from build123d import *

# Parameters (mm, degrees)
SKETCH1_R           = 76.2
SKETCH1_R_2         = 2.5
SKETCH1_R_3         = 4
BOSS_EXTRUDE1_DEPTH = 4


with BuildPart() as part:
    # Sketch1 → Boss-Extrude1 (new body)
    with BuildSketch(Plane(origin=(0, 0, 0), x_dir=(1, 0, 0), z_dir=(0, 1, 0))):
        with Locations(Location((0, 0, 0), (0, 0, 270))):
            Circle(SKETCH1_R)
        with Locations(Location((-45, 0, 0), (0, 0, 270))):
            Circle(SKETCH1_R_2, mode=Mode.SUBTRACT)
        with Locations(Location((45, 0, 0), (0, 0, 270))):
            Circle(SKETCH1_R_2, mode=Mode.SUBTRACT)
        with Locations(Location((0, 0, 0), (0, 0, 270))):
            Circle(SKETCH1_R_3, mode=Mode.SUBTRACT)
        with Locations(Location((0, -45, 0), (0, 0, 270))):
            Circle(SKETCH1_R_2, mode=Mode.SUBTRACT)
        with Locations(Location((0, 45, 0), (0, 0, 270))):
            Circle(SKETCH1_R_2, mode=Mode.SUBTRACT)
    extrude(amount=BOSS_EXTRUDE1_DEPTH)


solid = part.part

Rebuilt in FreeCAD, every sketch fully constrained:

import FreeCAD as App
import Part
import Sketcher
from FreeCAD import Vector

doc = App.newDocument("Part")
body = doc.addObject("PartDesign::Body", "Body")

# Sketch on XZ plane
sketch1 = body.newObject("Sketcher::SketchObject", "Sketch")
sketch1.AttachmentSupport = (doc.getObject("XZ_Plane"), [""])
sketch1.MapMode = "FlatFace"
sketch1.addGeometry(Part.Circle(Vector(0, 0, 0), Vector(0, 0, 1), 76.2), False)
sketch1.addGeometry(Part.Circle(Vector(0, -45, 0), Vector(0, 0, 1), 2.5), False)
sketch1.addGeometry(Part.Circle(Vector(-45, 0, 0), Vector(0, 0, 1), 2.5), False)
sketch1.addGeometry(Part.Circle(Vector(45, 0, 0), Vector(0, 0, 1), 2.5), False)
sketch1.addGeometry(Part.Circle(Vector(0, 0, 0), Vector(0, 0, 1), 4), False)
sketch1.addGeometry(Part.Circle(Vector(0, 45, 0), Vector(0, 0, 1), 2.5), False)
sketch1.addConstraint(Sketcher.Constraint("Coincident", 0, 3, -1, 1))
sketch1.addConstraint(Sketcher.Constraint("Coincident", 4, 3, -1, 1))
sketch1.addConstraint(Sketcher.Constraint("Equal", 1, 2))
sketch1.addConstraint(Sketcher.Constraint("Equal", 2, 3))
sketch1.addConstraint(Sketcher.Constraint("Equal", 3, 5))
sketch1.addConstraint(Sketcher.Constraint("Symmetric", 2, 3, 3, 3, -1, 1))
sketch1.addConstraint(Sketcher.Constraint("Symmetric", 1, 3, 5, 3, -1, 1))
sketch1.addConstraint(Sketcher.Constraint("PointOnObject", 1, 3, -2))
sketch1.addConstraint(Sketcher.Constraint("PointOnObject", 2, 3, -1))
sketch1.addConstraint(Sketcher.Constraint("Diameter", 1, 5.0))
sketch1.addConstraint(Sketcher.Constraint("Diameter", 4, 8.0))
sketch1.addConstraint(Sketcher.Constraint("Diameter", 0, 152.4))
sketch1.addConstraint(Sketcher.Constraint("DistanceY", 1, 3, -1, 1, 45.0))
sketch1.addConstraint(Sketcher.Constraint("DistanceX", 2, 3, -1, 1, 45.0))
pad1 = body.newObject("PartDesign::Pad", "Pad")
pad1.Profile = sketch1
pad1.Length = 4
pad1.Reversed = True

doc.recompute()
